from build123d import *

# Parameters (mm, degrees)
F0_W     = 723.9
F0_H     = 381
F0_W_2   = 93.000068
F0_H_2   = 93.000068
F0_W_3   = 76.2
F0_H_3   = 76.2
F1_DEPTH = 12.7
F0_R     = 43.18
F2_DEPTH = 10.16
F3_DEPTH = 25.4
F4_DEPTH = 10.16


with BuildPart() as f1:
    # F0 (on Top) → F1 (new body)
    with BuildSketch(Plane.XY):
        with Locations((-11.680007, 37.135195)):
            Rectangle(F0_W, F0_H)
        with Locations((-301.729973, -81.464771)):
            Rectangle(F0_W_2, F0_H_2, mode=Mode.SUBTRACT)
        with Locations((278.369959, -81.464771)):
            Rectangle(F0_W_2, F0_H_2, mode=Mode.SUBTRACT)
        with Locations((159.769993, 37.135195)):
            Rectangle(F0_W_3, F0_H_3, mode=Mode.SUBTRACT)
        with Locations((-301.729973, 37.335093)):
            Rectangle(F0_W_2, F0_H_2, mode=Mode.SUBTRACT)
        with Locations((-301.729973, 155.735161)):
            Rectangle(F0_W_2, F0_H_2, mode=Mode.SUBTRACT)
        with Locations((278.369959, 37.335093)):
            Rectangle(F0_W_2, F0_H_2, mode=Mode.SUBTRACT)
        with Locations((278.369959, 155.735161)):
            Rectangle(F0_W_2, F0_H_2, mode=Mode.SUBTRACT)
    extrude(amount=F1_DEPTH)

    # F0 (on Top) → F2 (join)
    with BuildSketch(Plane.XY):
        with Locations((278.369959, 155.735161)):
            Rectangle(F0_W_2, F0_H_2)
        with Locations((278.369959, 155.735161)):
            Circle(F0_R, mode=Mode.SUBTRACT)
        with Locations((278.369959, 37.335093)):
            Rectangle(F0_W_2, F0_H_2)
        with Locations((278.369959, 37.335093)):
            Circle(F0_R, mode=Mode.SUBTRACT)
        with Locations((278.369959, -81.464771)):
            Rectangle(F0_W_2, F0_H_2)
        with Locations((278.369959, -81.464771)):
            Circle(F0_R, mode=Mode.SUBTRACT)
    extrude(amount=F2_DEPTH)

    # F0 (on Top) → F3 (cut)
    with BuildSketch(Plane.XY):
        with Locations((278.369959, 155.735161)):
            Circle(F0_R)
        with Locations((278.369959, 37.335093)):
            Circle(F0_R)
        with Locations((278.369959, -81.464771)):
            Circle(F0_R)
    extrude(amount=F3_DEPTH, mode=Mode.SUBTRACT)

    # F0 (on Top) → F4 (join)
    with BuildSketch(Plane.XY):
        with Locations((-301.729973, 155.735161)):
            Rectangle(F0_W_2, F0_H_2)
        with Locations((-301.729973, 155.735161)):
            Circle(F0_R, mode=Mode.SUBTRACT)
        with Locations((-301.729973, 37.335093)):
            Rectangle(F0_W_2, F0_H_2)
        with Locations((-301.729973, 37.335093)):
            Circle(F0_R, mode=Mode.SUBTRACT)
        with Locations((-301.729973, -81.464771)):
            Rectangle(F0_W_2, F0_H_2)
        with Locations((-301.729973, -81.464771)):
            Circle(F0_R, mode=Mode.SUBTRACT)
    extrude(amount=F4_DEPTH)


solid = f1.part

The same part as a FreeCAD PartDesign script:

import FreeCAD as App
import Part
import Sketcher
from FreeCAD import Vector
Q = App.Units.Quantity

doc = App.newDocument("Part")
body = doc.addObject("PartDesign::Body", "Body")

sketch1 = doc.addObject("Sketcher::SketchObject", "Sketch")
body.addObject(sketch1)
sketch1.AttachmentSupport = (doc.XY_Plane, [""])
sketch1.MapMode = "FlatFace"
sketch1.addGeometry([
    Part.LineSegment(Vector(-373.630007, 227.635195, 0), Vector(-373.630007, -153.364805, 0)),
    Part.LineSegment(Vector(-373.630007, -153.364805, 0), Vector(350.269993, -153.364805, 0)),
    Part.LineSegment(Vector(350.269993, -153.364805, 0), Vector(350.269993, 227.635195, 0)),
    Part.LineSegment(Vector(350.269993, 227.635195, 0), Vector(-373.630007, 227.635195, 0)),
    Part.LineSegment(Vector(-255.229939, -127.964805, 0), Vector(-348.230007, -127.964805, 0)),
    Part.LineSegment(Vector(-348.230007, -127.964805, 0), Vector(-348.230007, -34.964737, 0)),
    Part.LineSegment(Vector(-348.230007, -34.964737, 0), Vector(-255.229939, -34.964737, 0)),
    Part.LineSegment(Vector(-255.229939, -34.964737, 0), Vector(-255.229939, -127.964805, 0)),
    Part.LineSegment(Vector(324.869993, -127.964805, 0), Vector(231.869925, -127.964805, 0)),
    Part.LineSegment(Vector(231.869925, -127.964805, 0), Vector(231.869925, -34.964737, 0)),
    Part.LineSegment(Vector(231.869925, -34.964737, 0), Vector(324.869993, -34.964737, 0)),
    Part.LineSegment(Vector(324.869993, -34.964737, 0), Vector(324.869993, -127.964805, 0)),
    Part.LineSegment(Vector(-255.229939, -9.164941, 0), Vector(-348.230007, -9.164941, 0)),
    Part.LineSegment(Vector(-348.230007, -9.164941, 0), Vector(-348.230007, 83.835127, 0)),
    Part.LineSegment(Vector(-348.230007, 83.835127, 0), Vector(-255.229939, 83.835127, 0)),
    Part.LineSegment(Vector(-255.229939, 83.835127, 0), Vector(-255.229939, -9.164941, 0)),
    Part.LineSegment(Vector(-255.229939, 109.235127, 0), Vector(-348.230007, 109.235127, 0)),
    Part.LineSegment(Vector(-348.230007, 109.235127, 0), Vector(-348.230007, 202.235195, 0)),
    Part.LineSegment(Vector(-348.230007, 202.235195, 0), Vector(-255.229939, 202.235195, 0)),
    Part.LineSegment(Vector(-255.229939, 202.235195, 0), Vector(-255.229939, 109.235127, 0)),
    Part.LineSegment(Vector(197.869993, -0.964805, 0), Vector(121.669993, -0.964805, 0)),
    Part.LineSegment(Vector(121.669993, -0.964805, 0), Vector(121.669993, 75.235195, 0)),
    Part.LineSegment(Vector(121.669993, 75.235195, 0), Vector(197.869993, 75.235195, 0)),
    Part.LineSegment(Vector(197.869993, 75.235195, 0), Vector(197.869993, -0.964805, 0)),
    Part.LineSegment(Vector(324.869993, -9.164941, 0), Vector(231.869925, -9.164941, 0)),
    Part.LineSegment(Vector(231.869925, -9.164941, 0), Vector(231.869925, 83.835127, 0)),
    Part.LineSegment(Vector(231.869925, 83.835127, 0), Vector(324.869993, 83.835127, 0)),
    Part.LineSegment(Vector(324.869993, 83.835127, 0), Vector(324.869993, -9.164941, 0)),
    Part.LineSegment(Vector(324.869993, 109.235127, 0), Vector(231.869925, 109.235127, 0)),
    Part.LineSegment(Vector(231.869925, 109.235127, 0), Vector(231.869925, 202.235195, 0)),
    Part.LineSegment(Vector(231.869925, 202.235195, 0), Vector(324.869993, 202.235195, 0)),
    Part.LineSegment(Vector(324.869993, 202.235195, 0), Vector(324.869993, 109.235127, 0)),
], False)
sketch1.addConstraint([
    Sketcher.Constraint("Coincident", 0, 2, 1, 1),
    Sketcher.Constraint("Coincident", 1, 2, 2, 1),
    Sketcher.Constraint("Coincident", 2, 2, 3, 1),
    Sketcher.Constraint("Coincident", 3, 2, 0, 1),
    Sketcher.Constraint("Coincident", 4, 2, 5, 1),
    Sketcher.Constraint("Coincident", 5, 2, 6, 1),
    Sketcher.Constraint("Coincident", 6, 2, 7, 1),
    Sketcher.Constraint("Coincident", 7, 2, 4, 1),
    Sketcher.Constraint("Coincident", 8, 2, 9, 1),
    Sketcher.Constraint("Coincident", 9, 2, 10, 1),
    Sketcher.Constraint("Coincident", 10, 2, 11, 1),
    Sketcher.Constraint("Coincident", 11, 2, 8, 1),
    Sketcher.Constraint("Coincident", 12, 2, 13, 1),
    Sketcher.Constraint("Coincident", 13, 2, 14, 1),
    Sketcher.Constraint("Coincident", 14, 2, 15, 1),
    Sketcher.Constraint("Coincident", 15, 2, 12, 1),
    Sketcher.Constraint("Coincident", 16, 2, 17, 1),
    Sketcher.Constraint("Coincident", 17, 2, 18, 1),
    Sketcher.Constraint("Coincident", 18, 2, 19, 1),
    Sketcher.Constraint("Coincident", 19, 2, 16, 1),
    Sketcher.Constraint("Coincident", 20, 2, 21, 1),
    Sketcher.Constraint("Coincident", 21, 2, 22, 1),
    Sketcher.Constraint("Coincident", 22, 2, 23, 1),
    Sketcher.Constraint("Coincident", 23, 2, 20, 1),
    Sketcher.Constraint("Coincident", 24, 2, 25, 1),
    Sketcher.Constraint("Coincident", 25, 2, 26, 1),
    Sketcher.Constraint("Coincident", 26, 2, 27, 1),
    Sketcher.Constraint("Coincident", 27, 2, 24, 1),
    Sketcher.Constraint("Coincident", 28, 2, 29, 1),
    Sketcher.Constraint("Coincident", 29, 2, 30, 1),
    Sketcher.Constraint("Coincident", 30, 2, 31, 1),
    Sketcher.Constraint("Coincident", 31, 2, 28, 1),
    Sketcher.Constraint("Vertical", 0),
    Sketcher.Constraint("Horizontal", 1),
    Sketcher.Constraint("Vertical", 2),
    Sketcher.Constraint("Horizontal", 3),
    Sketcher.Constraint("Horizontal", 4),
    Sketcher.Constraint("Vertical", 5),
    Sketcher.Constraint("Horizontal", 6),
    Sketcher.Constraint("Vertical", 7),
    Sketcher.Constraint("Horizontal", 8),
    Sketcher.Constraint("Vertical", 9),
    Sketcher.Constraint("Horizontal", 10),
    Sketcher.Constraint("Vertical", 11),
    Sketcher.Constraint("Horizontal", 12),
    Sketcher.Constraint("Vertical", 13),
    Sketcher.Constraint("Horizontal", 14),
    Sketcher.Constraint("Vertical", 15),
    Sketcher.Constraint("Horizontal", 16),
    Sketcher.Constraint("Vertical", 17),
    Sketcher.Constraint("Horizontal", 18),
    Sketcher.Constraint("Vertical", 19),
    Sketcher.Constraint("Horizontal", 20),
    Sketcher.Constraint("Vertical", 21),
    Sketcher.Constraint("Horizontal", 22),
    Sketcher.Constraint("Vertical", 23),
    Sketcher.Constraint("Horizontal", 24),
    Sketcher.Constraint("Vertical", 25),
    Sketcher.Constraint("Horizontal", 26),
    Sketcher.Constraint("Vertical", 27),
    Sketcher.Constraint("Horizontal", 28),
    Sketcher.Constraint("Vertical", 29),
    Sketcher.Constraint("Horizontal", 30),
    Sketcher.Constraint("Vertical", 31),
    Sketcher.Constraint("Horizontal", 7, 2, 8, 2),
    Sketcher.Constraint("Horizontal", 6, 2, 9, 2),
    Sketcher.Constraint("Horizontal", 15, 2, 24, 2),
    Sketcher.Constraint("Horizontal", 14, 2, 25, 2),
    Sketcher.Constraint("Horizontal", 19, 2, 28, 2),
    Sketcher.Constraint("Horizontal", 18, 2, 29, 2),
    Sketcher.Constraint("Vertical", 5, 2, 12, 2),
    Sketcher.Constraint("Vertical", 7, 2, 14, 2),
    Sketcher.Constraint("Vertical", 13, 2, 16, 2),
    Sketcher.Constraint("Vertical", 15, 2, 18, 2),
    Sketcher.Constraint("Vertical", 9, 2, 24, 2),
    Sketcher.Constraint("Vertical", 11, 2, 26, 2),
    Sketcher.Constraint("Vertical", 25, 2, 28, 2),
    Sketcher.Constraint("Vertical", 27, 2, 30, 2),
    Sketcher.Constraint("Equal", 6, 8),
    Sketcher.Constraint("Equal", 30, 5),
    Sketcher.Constraint("Equal", 11, 13),
    Sketcher.Constraint("Equal", 15, 17),
    Sketcher.Constraint("Equal", 22, 21),
    Sketcher.Constraint("DistanceX", 20, 2, 20, 1, Q("3 in")),
    Sketcher.Constraint("DistanceY", 0, 2, 0, 1, Q("15 in")),
    Sketcher.Constraint("DistanceX", 1, 1, 1, 2, Q("28.5 in")),
    Sketcher.Constraint("DistanceX", 0, 2, 4, 2, Q("1 in")),
    Sketcher.Constraint("DistanceY", 0, 2, 4, 2, Q("1 in")),
    Sketcher.Constraint("DistanceX", 10, 2, 1, 2, Q("1 in")),
    Sketcher.Constraint("DistanceY", 13, 2, 16, 2, Q("1 in")),
    Sketcher.Constraint("DistanceY", 17, 2, 3, 2, Q("1 in")),
    Sketcher.Constraint("DistanceY", 8, 2, 20, 2, Q("5 in")),
    Sketcher.Constraint("DistanceX", 20, 2, 10, 2, Q("8 in")),
    Sketcher.Constraint("DistanceX", 4, 2, 4, 1, Q("93.000068 mm")),
    Sketcher.Constraint("DistanceX", 6, 2, -1, 1, Q("255.229939 mm")),
    Sketcher.Constraint("DistanceY", 12, 2, -1, 1, Q("9.164941 mm")),
])
pad1 = doc.addObject("PartDesign::Pad", "Pad")
body.addObject(pad1)
pad1.Profile = sketch1
pad1.Length = Q("0.5 in")

sketch2 = doc.addObject("Sketcher::SketchObject", "Sketch001")
body.addObject(sketch2)
sketch2.AttachmentSupport = (doc.XY_Plane, [""])
sketch2.MapMode = "FlatFace"
sketch2.addGeometry([
    Part.LineSegment(Vector(231.869925, 202.235195, 0), Vector(231.869925, 109.235127, 0)),
    Part.LineSegment(Vector(231.869925, 109.235127, 0), Vector(324.869993, 109.235127, 0)),
    Part.LineSegment(Vector(324.869993, 109.235127, 0), Vector(324.869993, 202.235195, 0)),
    Part.LineSegment(Vector(324.869993, 202.235195, 0), Vector(231.869925, 202.235195, 0)),
    Part.Circle(Vector(278.369959, 155.735161, 0), Vector(0, 0, 1), 43.18),
    Part.LineSegment(Vector(231.869925, 83.835127, 0), Vector(231.869925, -9.164941, 0)),
    Part.LineSegment(Vector(231.869925, -9.164941, 0), Vector(324.869993, -9.164941, 0)),
    Part.LineSegment(Vector(324.869993, -9.164941, 0), Vector(324.869993, 83.835127, 0)),
    Part.LineSegment(Vector(324.869993, 83.835127, 0), Vector(231.869925, 83.835127, 0)),
    Part.Circle(Vector(278.369959, 37.335093, 0), Vector(0, 0, 1), 43.18),
    Part.LineSegment(Vector(231.869925, -34.964737, 0), Vector(231.869925, -127.964805, 0)),
    Part.LineSegment(Vector(231.869925, -127.964805, 0), Vector(324.869993, -127.964805, 0)),
    Part.LineSegment(Vector(324.869993, -127.964805, 0), Vector(324.869993, -34.964737, 0)),
    Part.LineSegment(Vector(324.869993, -34.964737, 0), Vector(231.869925, -34.964737, 0)),
    Part.Circle(Vector(278.369959, -81.464771, 0), Vector(0, 0, 1), 43.18),
], False)
sketch2.addConstraint([
    Sketcher.Constraint("Coincident", 0, 2, 1, 1),
    Sketcher.Constraint("Coincident", 1, 2, 2, 1),
    Sketcher.Constraint("Coincident", 2, 2, 3, 1),
    Sketcher.Constraint("Coincident", 3, 2, 0, 1),
    Sketcher.Constraint("Coincident", 5, 2, 6, 1),
    Sketcher.Constraint("Coincident", 6, 2, 7, 1),
    Sketcher.Constraint("Coincident", 7, 2, 8, 1),
    Sketcher.Constraint("Coincident", 8, 2, 5, 1),
    Sketcher.Constraint("Coincident", 10, 2, 11, 1),
    Sketcher.Constraint("Coincident", 11, 2, 12, 1),
    Sketcher.Constraint("Coincident", 12, 2, 13, 1),
    Sketcher.Constraint("Coincident", 13, 2, 10, 1),
    Sketcher.Constraint("Vertical", 0),
    Sketcher.Constraint("Horizontal", 1),
    Sketcher.Constraint("Vertical", 2),
    Sketcher.Constraint("Horizontal", 3),
    Sketcher.Constraint("Vertical", 5),
    Sketcher.Constraint("Horizontal", 6),
    Sketcher.Constraint("Vertical", 7),
    Sketcher.Constraint("Horizontal", 8),
    Sketcher.Constraint("Vertical", 10),
    Sketcher.Constraint("Horizontal", 11),
    Sketcher.Constraint("Vertical", 12),
    Sketcher.Constraint("Horizontal", 13),
    Sketcher.Constraint("Equal", 4, 9),
    Sketcher.Constraint("Equal", 9, 14),
    Sketcher.Constraint("Vertical", 4, 3, 9, 3),
    Sketcher.Constraint("Vertical", 9, 3, 14, 3),
    Sketcher.Constraint("Vertical", 3, 2, 5, 2),
    Sketcher.Constraint("Vertical", 2, 2, 6, 2),
    Sketcher.Constraint("Vertical", 8, 2, 10, 2),
    Sketcher.Constraint("Vertical", 7, 2, 11, 2),
    Sketcher.Constraint("Equal", 13, 0),
    Sketcher.Constraint("Equal", 2, 5),
    Sketcher.Constraint("Equal", 7, 10),
    Sketcher.Constraint("Diameter", 4, Q("3.4 in")),
    Sketcher.Constraint("DistanceY", 7, 2, 1, 2, Q("1 in")),
    Sketcher.Constraint("DistanceX", 1, 1, 1, 2, Q("93.000068 mm")),
    Sketcher.Constraint("DistanceY", 14, 3, 0, 2, Q("190.699898 mm")),
    Sketcher.Constraint("DistanceY", 9, 3, 2, 2, Q("164.900102 mm")),
    Sketcher.Constraint("DistanceY", 5, 2, 4, 3, Q("164.900102 mm")),
    Sketcher.Constraint("DistanceX", -1, 1, 4, 3, Q("278.369959 mm")),
    Sketcher.Constraint("DistanceY", -1, 1, 4, 3, Q("155.735161 mm")),
    Sketcher.Constraint("DistanceY", 12, 2, 9, 3, Q("72.29983 mm")),
    Sketcher.Constraint("DistanceX", -1, 1, 0, 2, Q("231.869925 mm")),
])
pad2 = doc.addObject("PartDesign::Pad", "Pad001")
body.addObject(pad2)
pad2.Profile = sketch2
pad2.Length = Q("0.4 in")

sketch3 = doc.addObject("Sketcher::SketchObject", "Sketch002")
body.addObject(sketch3)
sketch3.AttachmentSupport = (doc.XY_Plane, [""])
sketch3.MapMode = "FlatFace"
sketch3.addGeometry([
    Part.Circle(Vector(278.369959, 155.735161, 0), Vector(0, 0, 1), 43.18),
    Part.Circle(Vector(278.369959, 37.335093, 0), Vector(0, 0, 1), 43.18),
    Part.Circle(Vector(278.369959, -81.464771, 0), Vector(0, 0, 1), 43.18),
], False)
sketch3.addConstraint([
    Sketcher.Constraint("Equal", 0, 1),
    Sketcher.Constraint("Equal", 1, 2),
    Sketcher.Constraint("Vertical", 0, 3, 1, 3),
    Sketcher.Constraint("Vertical", 1, 3, 2, 3),
    Sketcher.Constraint("Diameter", 0, Q("3.4 in")),
    Sketcher.Constraint("DistanceX", -1, 1, 0, 3, Q("278.369959 mm")),
    Sketcher.Constraint("DistanceY", -1, 1, 0, 3, Q("155.735161 mm")),
    Sketcher.Constraint("DistanceY", 2, 3, -1, 1, Q("81.464771 mm")),
    Sketcher.Constraint("DistanceY", 1, 3, 0, 3, Q("118.400068 mm")),
])
pocket1 = doc.addObject("PartDesign::Pocket", "Pocket")
body.addObject(pocket1)
pocket1.Profile = sketch3
pocket1.Length = Q("1 in")
pocket1.Reversed = True

sketch4 = doc.addObject("Sketcher::SketchObject", "Sketch003")
body.addObject(sketch4)
sketch4.AttachmentSupport = (doc.XY_Plane, [""])
sketch4.MapMode = "FlatFace"
sketch4.addGeometry([
    Part.LineSegment(Vector(-348.230007, 202.235195, 0), Vector(-348.230007, 109.235127, 0)),
    Part.LineSegment(Vector(-348.230007, 109.235127, 0), Vector(-255.229939, 109.235127, 0)),
    Part.LineSegment(Vector(-255.229939, 109.235127, 0), Vector(-255.229939, 202.235195, 0)),
    Part.LineSegment(Vector(-255.229939, 202.235195, 0), Vector(-348.230007, 202.235195, 0)),
    Part.Circle(Vector(-301.729973, 155.735161, 0), Vector(0, 0, 1), 43.18),
    Part.LineSegment(Vector(-348.230007, 83.835127, 0), Vector(-348.230007, -9.164941, 0)),
    Part.LineSegment(Vector(-348.230007, -9.164941, 0), Vector(-255.229939, -9.164941, 0)),
    Part.LineSegment(Vector(-255.229939, -9.164941, 0), Vector(-255.229939, 83.835127, 0)),
    Part.LineSegment(Vector(-255.229939, 83.835127, 0), Vector(-348.230007, 83.835127, 0)),
    Part.Circle(Vector(-301.729973, 37.335093, 0), Vector(0, 0, 1), 43.18),
    Part.LineSegment(Vector(-348.230007, -34.964737, 0), Vector(-348.230007, -127.964805, 0)),
    Part.LineSegment(Vector(-348.230007, -127.964805, 0), Vector(-255.229939, -127.964805, 0)),
    Part.LineSegment(Vector(-255.229939, -127.964805, 0), Vector(-255.229939, -34.964737, 0)),
    Part.LineSegment(Vector(-255.229939, -34.964737, 0), Vector(-348.230007, -34.964737, 0)),
    Part.Circle(Vector(-301.729973, -81.464771, 0), Vector(0, 0, 1), 43.18),
], False)
sketch4.addConstraint([
    Sketcher.Constraint("Coincident", 0, 2, 1, 1),
    Sketcher.Constraint("Coincident", 1, 2, 2, 1),
    Sketcher.Constraint("Coincident", 2, 2, 3, 1),
    Sketcher.Constraint("Coincident", 3, 2, 0, 1),
    Sketcher.Constraint("Coincident", 5, 2, 6, 1),
    Sketcher.Constraint("Coincident", 6, 2, 7, 1),
    Sketcher.Constraint("Coincident", 7, 2, 8, 1),
    Sketcher.Constraint("Coincident", 8, 2, 5, 1),
    Sketcher.Constraint("Coincident", 10, 2, 11, 1),
    Sketcher.Constraint("Coincident", 11, 2, 12, 1),
    Sketcher.Constraint("Coincident", 12, 2, 13, 1),
    Sketcher.Constraint("Coincident", 13, 2, 10, 1),
    Sketcher.Constraint("Vertical", 0),
    Sketcher.Constraint("Horizontal", 1),
    Sketcher.Constraint("Vertical", 2),
    Sketcher.Constraint("Horizontal", 3),
    Sketcher.Constraint("Vertical", 5),
    Sketcher.Constraint("Horizontal", 6),
    Sketcher.Constraint("Vertical", 7),
    Sketcher.Constraint("Horizontal", 8),
    Sketcher.Constraint("Vertical", 10),
    Sketcher.Constraint("Horizontal", 11),
    Sketcher.Constraint("Vertical", 12),
    Sketcher.Constraint("Horizontal", 13),
    Sketcher.Constraint("Equal", 4, 9),
    Sketcher.Constraint("Equal", 9, 14),
    Sketcher.Constraint("Vertical", 4, 3, 9, 3),
    Sketcher.Constraint("Vertical", 9, 3, 14, 3),
    Sketcher.Constraint("Vertical", 3, 2, 5, 2),
    Sketcher.Constraint("Vertical", 2, 2, 6, 2),
    Sketcher.Constraint("Vertical", 8, 2, 10, 2),
    Sketcher.Constraint("Vertical", 7, 2, 11, 2),
    Sketcher.Constraint("Equal", 13, 0),
    Sketcher.Constraint("Equal", 2, 5),
    Sketcher.Constraint("Equal", 7, 10),
    Sketcher.Constraint("Diameter", 4, Q("3.4 in")),
    Sketcher.Constraint("DistanceY", 7, 2, 1, 2, Q("1 in")),
    Sketcher.Constraint("DistanceX", 1, 1, 1, 2, Q("93.000068 mm")),
    Sketcher.Constraint("DistanceY", 14, 3, 0, 2, Q("190.699898 mm")),
    Sketcher.Constraint("DistanceY", 9, 3, 2, 2, Q("164.900102 mm")),
    Sketcher.Constraint("DistanceY", 5, 2, 4, 3, Q("164.900102 mm")),
    Sketcher.Constraint("DistanceY", -1, 1, 4, 3, Q("155.735161 mm")),
    Sketcher.Constraint("DistanceX", 1, 2, -1, 1, Q("255.229939 mm")),
    Sketcher.Constraint("DistanceY", 12, 2, 9, 3, Q("72.29983 mm")),
    Sketcher.Constraint("DistanceX", 4, 3, -1, 1, Q("301.729973 mm")),
])
pad3 = doc.addObject("PartDesign::Pad", "Pad002")
body.addObject(pad3)
pad3.Profile = sketch4
pad3.Length = Q("0.4 in")

doc.recompute()
